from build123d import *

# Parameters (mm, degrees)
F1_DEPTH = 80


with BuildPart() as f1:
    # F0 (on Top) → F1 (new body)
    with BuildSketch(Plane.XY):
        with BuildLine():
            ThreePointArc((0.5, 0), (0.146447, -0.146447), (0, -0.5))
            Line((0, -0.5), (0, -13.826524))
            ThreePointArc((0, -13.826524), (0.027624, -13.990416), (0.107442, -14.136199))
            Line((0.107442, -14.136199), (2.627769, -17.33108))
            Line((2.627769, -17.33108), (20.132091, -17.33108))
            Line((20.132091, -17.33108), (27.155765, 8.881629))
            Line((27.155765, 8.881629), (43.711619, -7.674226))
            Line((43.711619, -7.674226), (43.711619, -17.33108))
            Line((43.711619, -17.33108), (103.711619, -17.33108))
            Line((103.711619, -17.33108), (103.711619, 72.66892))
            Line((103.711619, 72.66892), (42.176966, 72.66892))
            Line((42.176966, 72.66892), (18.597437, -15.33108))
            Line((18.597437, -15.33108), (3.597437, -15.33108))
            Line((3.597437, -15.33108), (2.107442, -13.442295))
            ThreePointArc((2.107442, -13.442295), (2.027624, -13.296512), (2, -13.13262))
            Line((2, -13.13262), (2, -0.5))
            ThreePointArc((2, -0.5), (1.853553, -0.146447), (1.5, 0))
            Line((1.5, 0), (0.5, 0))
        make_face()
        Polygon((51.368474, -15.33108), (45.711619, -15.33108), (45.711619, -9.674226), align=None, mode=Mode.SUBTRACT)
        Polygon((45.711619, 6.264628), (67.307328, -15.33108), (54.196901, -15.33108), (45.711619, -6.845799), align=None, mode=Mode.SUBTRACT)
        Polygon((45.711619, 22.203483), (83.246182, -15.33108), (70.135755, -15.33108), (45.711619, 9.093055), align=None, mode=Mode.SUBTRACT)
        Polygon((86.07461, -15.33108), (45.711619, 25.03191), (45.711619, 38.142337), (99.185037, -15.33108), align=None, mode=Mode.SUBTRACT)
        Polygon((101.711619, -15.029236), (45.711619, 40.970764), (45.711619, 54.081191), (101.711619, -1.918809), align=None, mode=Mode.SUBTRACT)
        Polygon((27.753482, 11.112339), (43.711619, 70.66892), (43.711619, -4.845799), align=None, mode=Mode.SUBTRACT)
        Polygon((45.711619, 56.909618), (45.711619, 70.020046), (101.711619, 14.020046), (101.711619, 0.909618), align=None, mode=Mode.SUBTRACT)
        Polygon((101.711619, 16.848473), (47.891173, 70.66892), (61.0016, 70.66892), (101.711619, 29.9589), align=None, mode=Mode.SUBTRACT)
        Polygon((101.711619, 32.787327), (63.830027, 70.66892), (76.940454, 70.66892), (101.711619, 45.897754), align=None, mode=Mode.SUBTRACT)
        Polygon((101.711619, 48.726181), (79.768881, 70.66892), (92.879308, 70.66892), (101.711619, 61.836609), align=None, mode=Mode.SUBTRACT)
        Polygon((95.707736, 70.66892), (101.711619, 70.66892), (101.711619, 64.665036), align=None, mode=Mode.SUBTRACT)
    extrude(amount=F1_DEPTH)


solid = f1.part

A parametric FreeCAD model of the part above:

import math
import FreeCAD as App
import Part
import Sketcher
from FreeCAD import Vector
Q = App.Units.Quantity


def add_polygon(sketch, points):
    """Adds a closed chain of lines whose ends are joined by coincident constraints."""
    first, n = sketch.GeometryCount, len(points)
    for a, b in zip(points, points[1:] + points[:1]):
        sketch.addGeometry(Part.LineSegment(App.Vector(*a, 0), App.Vector(*b, 0)), False)
    for i in range(n):
        sketch.addConstraint(Sketcher.Constraint("Coincident", first + i, 2, first + (i + 1) % n, 1))

doc = App.newDocument("Part")
body = doc.addObject("PartDesign::Body", "Body")

# Sketch on XY plane
sketch1 = body.newObject("Sketcher::SketchObject", "Sketch")
sketch1.AttachmentSupport = (doc.getObject("XY_Plane"), [""])
sketch1.MapMode = "FlatFace"
sketch1.addGeometry(Part.ArcOfCircle(Part.Circle(Vector(0.5, -0.5, 0), Vector(0, 0, 1), 0.5), math.radians(90), math.radians(180)), False)  # 0
sketch1.addGeometry(Part.LineSegment(Vector(0, -0.5, 0), Vector(0, -13.83, 0)), False)  # 1
sketch1.addGeometry(Part.ArcOfCircle(Part.Circle(Vector(0.5, -13.83, 0), Vector(0, 0, 1), 0.5), math.radians(-180), math.radians(-142)), False)  # 2
sketch1.addGeometry(Part.LineSegment(Vector(0.11, -14.14, 0), Vector(2.63, -17.33, 0)), False)  # 3
sketch1.addGeometry(Part.LineSegment(Vector(2.63, -17.33, 0), Vector(20.13, -17.33, 0)), False)  # 4
sketch1.addGeometry(Part.LineSegment(Vector(20.13, -17.33, 0), Vector(27.16, 8.88, 0)), False)  # 5
sketch1.addGeometry(Part.LineSegment(Vector(27.16, 8.88, 0), Vector(43.71, -7.67, 0)), False)  # 6
sketch1.addGeometry(Part.LineSegment(Vector(43.71, -7.67, 0), Vector(43.71, -17.33, 0)), False)  # 7
sketch1.addGeometry(Part.LineSegment(Vector(43.71, -17.33, 0), Vector(103.71, -17.33, 0)), False)  # 8
sketch1.addGeometry(Part.LineSegment(Vector(103.71, -17.33, 0), Vector(103.71, 72.67, 0)), False)  # 9
sketch1.addGeometry(Part.LineSegment(Vector(103.71, 72.67, 0), Vector(42.18, 72.67, 0)), False)  # 10
sketch1.addGeometry(Part.LineSegment(Vector(42.18, 72.67, 0), Vector(18.6, -15.33, 0)), False)  # 11
sketch1.addGeometry(Part.LineSegment(Vector(18.6, -15.33, 0), Vector(3.6, -15.33, 0)), False)  # 12
sketch1.addGeometry(Part.LineSegment(Vector(3.6, -15.33, 0), Vector(2.11, -13.44, 0)), False)  # 13
sketch1.addGeometry(Part.ArcOfCircle(Part.Circle(Vector(2.5, -13.13, 0), Vector(0, 0, 1), 0.5), math.radians(-180), math.radians(-142)), False)  # 14
sketch1.addGeometry(Part.LineSegment(Vector(2, -13.13, 0), Vector(2, -0.5, 0)), False)  # 15
sketch1.addGeometry(Part.ArcOfCircle(Part.Circle(Vector(1.5, -0.5, 0), Vector(0, 0, 1), 0.5), math.radians(0), math.radians(90)), False)  # 16
sketch1.addGeometry(Part.LineSegment(Vector(1.5, 0, 0), Vector(0.5, 0, 0)), False)  # 17
add_polygon(sketch1, [(45.71, -9.67), (51.37, -15.33), (45.71, -15.33)])  # lines 18-20
add_polygon(sketch1, [(45.71, -6.85), (45.71, 6.26), (67.31, -15.33), (54.2, -15.33)])  # lines 21-24
add_polygon(sketch1, [(45.71, 9.09), (45.71, 22.2), (83.25, -15.33), (70.14, -15.33)])  # lines 25-28
add_polygon(sketch1, [(99.19, -15.33), (86.07, -15.33), (45.71, 25.03), (45.71, 38.14)])  # lines 29-32
add_polygon(sketch1, [(101.71, -1.92), (101.71, -15.03), (45.71, 40.97), (45.71, 54.08)])  # lines 33-36
add_polygon(sketch1, [(43.71, -4.85), (27.75, 11.11), (43.71, 70.67)])  # lines 37-39
add_polygon(sketch1, [(101.71, 0.91), (45.71, 56.91), (45.71, 70.02), (101.71, 14.02)])  # lines 40-43
add_polygon(sketch1, [(101.71, 29.96), (101.71, 16.85), (47.89, 70.67), (61, 70.67)])  # lines 44-47
add_polygon(sketch1, [(101.71, 45.9), (101.71, 32.79), (63.83, 70.67), (76.94, 70.67)])  # lines 48-51
add_polygon(sketch1, [(101.71, 61.84), (101.71, 48.73), (79.77, 70.67), (92.88, 70.67)])  # lines 52-55
add_polygon(sketch1, [(101.71, 64.67), (95.71, 70.67), (101.71, 70.67)])  # lines 56-58
sketch1.addConstraint(Sketcher.Constraint("Coincident", 0, 2, 1, 1))
sketch1.addConstraint(Sketcher.Constraint("Coincident", 1, 2, 2, 1))
sketch1.addConstraint(Sketcher.Constraint("Coincident", 2, 2, 3, 1))
sketch1.addConstraint(Sketcher.Constraint("Coincident", 3, 2, 4, 1))
sketch1.addConstraint(Sketcher.Constraint("Coincident", 4, 2, 5, 1))
sketch1.addConstraint(Sketcher.Constraint("Coincident", 5, 2, 6, 1))
sketch1.addConstraint(Sketcher.Constraint("Coincident", 6, 2, 7, 1))
sketch1.addConstraint(Sketcher.Constraint("Coincident", 7, 2, 8, 1))
sketch1.addConstraint(Sketcher.Constraint("Coincident", 8, 2, 9, 1))
sketch1.addConstraint(Sketcher.Constraint("Coincident", 9, 2, 10, 1))
sketch1.addConstraint(Sketcher.Constraint("Coincident", 10, 2, 11, 1))
sketch1.addConstraint(Sketcher.Constraint("Coincident", 11, 2, 12, 1))
sketch1.addConstraint(Sketcher.Constraint("Coincident", 12, 2, 13, 1))
sketch1.addConstraint(Sketcher.Constraint("Coincident", 13, 2, 14, 2))
sketch1.addConstraint(Sketcher.Constraint("Coincident", 14, 1, 15, 1))
sketch1.addConstraint(Sketcher.Constraint("Coincident", 15, 2, 16, 1))
sketch1.addConstraint(Sketcher.Constraint("Coincident", 16, 2, 17, 1))
sketch1.addConstraint(Sketcher.Constraint("Coincident", 17, 2, 0, 1))
sketch1.addConstraint(Sketcher.Constraint("Vertical", 1))
sketch1.addConstraint(Sketcher.Constraint("Horizontal", 4))
sketch1.addConstraint(Sketcher.Constraint("Vertical", 7))
sketch1.addConstraint(Sketcher.Constraint("Horizontal", 8))
sketch1.addConstraint(Sketcher.Constraint("Vertical", 9))
sketch1.addConstraint(Sketcher.Constraint("Horizontal", 10))
sketch1.addConstraint(Sketcher.Constraint("Horizontal", 12))
sketch1.addConstraint(Sketcher.Constraint("Vertical", 15))
sketch1.addConstraint(Sketcher.Constraint("Horizontal", 17))
sketch1.addConstraint(Sketcher.Constraint("Horizontal", 19))
sketch1.addConstraint(Sketcher.Constraint("Vertical", 20))
sketch1.addConstraint(Sketcher.Constraint("Vertical", 21))
sketch1.addConstraint(Sketcher.Constraint("Horizontal", 23))
sketch1.addConstraint(Sketcher.Constraint("Vertical", 25))
sketch1.addConstraint(Sketcher.Constraint("Horizontal", 27))
sketch1.addConstraint(Sketcher.Constraint("Horizontal", 29))
sketch1.addConstraint(Sketcher.Constraint("Vertical", 31))
sketch1.addConstraint(Sketcher.Constraint("Vertical", 33))
sketch1.addConstraint(Sketcher.Constraint("Vertical", 35))
sketch1.addConstraint(Sketcher.Constraint("Vertical", 39))
sketch1.addConstraint(Sketcher.Constraint("Vertical", 41))
sketch1.addConstraint(Sketcher.Constraint("Vertical", 43))
sketch1.addConstraint(Sketcher.Constraint("Vertical", 44))
sketch1.addConstraint(Sketcher.Constraint("Horizontal", 46))
sketch1.addConstraint(Sketcher.Constraint("Vertical", 48))
sketch1.addConstraint(Sketcher.Constraint("Horizontal", 50))
sketch1.addConstraint(Sketcher.Constraint("Vertical", 52))
sketch1.addConstraint(Sketcher.Constraint("Horizontal", 54))
sketch1.addConstraint(Sketcher.Constraint("Horizontal", 57))
sketch1.addConstraint(Sketcher.Constraint("Vertical", 58))
sketch1.addConstraint(Sketcher.Constraint("Equal", 2, 14))
sketch1.addConstraint(Sketcher.Constraint("Equal", 0, 16))
sketch1.addConstraint(Sketcher.Constraint("PointOnObject", 0, 2, -2))
sketch1.addConstraint(Sketcher.Constraint("PointOnObject", 16, 2, -1))
sketch1.addConstraint(Sketcher.Constraint("Parallel", 5, 11))
sketch1.addConstraint(Sketcher.Constraint("Parallel", 3, 13))
sketch1.addConstraint(Sketcher.Constraint("Parallel", 6, 18))
sketch1.addConstraint(Sketcher.Constraint("Parallel", 18, 22))
sketch1.addConstraint(Sketcher.Constraint("Parallel", 22, 24))
sketch1.addConstraint(Sketcher.Constraint("Parallel", 24, 26))
sketch1.addConstraint(Sketcher.Constraint("Parallel", 26, 28))
sketch1.addConstraint(Sketcher.Constraint("Parallel", 28, 30))
sketch1.addConstraint(Sketcher.Constraint("Parallel", 30, 32))
sketch1.addConstraint(Sketcher.Constraint("Parallel", 32, 34))
sketch1.addConstraint(Sketcher.Constraint("Parallel", 34, 36))
sketch1.addConstraint(Sketcher.Constraint("Parallel", 36, 37))
sketch1.addConstraint(Sketcher.Constraint("Parallel", 11, 38))
sketch1.addConstraint(Sketcher.Constraint("Parallel", 37, 40))
sketch1.addConstraint(Sketcher.Constraint("Parallel", 40, 42))
sketch1.addConstraint(Sketcher.Constraint("Parallel", 42, 45))
sketch1.addConstraint(Sketcher.Constraint("Parallel", 45, 47))
sketch1.addConstraint(Sketcher.Constraint("Parallel", 47, 49))
sketch1.addConstraint(Sketcher.Constraint("Parallel", 49, 51))
sketch1.addConstraint(Sketcher.Constraint("Parallel", 51, 53))
sketch1.addConstraint(Sketcher.Constraint("Parallel", 53, 55))
sketch1.addConstraint(Sketcher.Constraint("Parallel", 55, 56))
sketch1.addConstraint(Sketcher.Constraint("Horizontal", 16, 3, 0, 2))
sketch1.addConstraint(Sketcher.Constraint("Horizontal", 4, 2, 7, 2))
sketch1.addConstraint(Sketcher.Constraint("Horizontal", 0, 2, 15, 2))
sketch1.addConstraint(Sketcher.Constraint("Horizontal", 12, 2, 18, 2))
sketch1.addConstraint(Sketcher.Constraint("Horizontal", 19, 2, 22, 2))
sketch1.addConstraint(Sketcher.Constraint("Horizontal", 23, 2, 26, 2))
sketch1.addConstraint(Sketcher.Constraint("Horizontal", 27, 2, 29, 2))
sketch1.addConstraint(Sketcher.Constraint("Horizontal", 38, 2, 45, 2))
sketch1.addConstraint(Sketcher.Constraint("Horizontal", 46, 2, 49, 2))
sketch1.addConstraint(Sketcher.Constraint("Horizontal", 50, 2, 53, 2))
sketch1.addConstraint(Sketcher.Constraint("Horizontal", 54, 2, 56, 2))
sketch1.addConstraint(Sketcher.Constraint("Vertical", 0, 3, 17, 2))
sketch1.addConstraint(Sketcher.Constraint("Vertical", 20, 2, 21, 2))
sketch1.addConstraint(Sketcher.Constraint("Vertical", 24, 2, 25, 2))
sketch1.addConstraint(Sketcher.Constraint("Vertical", 28, 2, 30, 2))
sketch1.addConstraint(Sketcher.Constraint("Vertical", 31, 2, 34, 2))
sketch1.addConstraint(Sketcher.Constraint("Vertical", 7, 2, 38, 2))
sketch1.addConstraint(Sketcher.Constraint("Vertical", 35, 2, 40, 2))
sketch1.addConstraint(Sketcher.Constraint("Vertical", 36, 2, 42, 2))
sketch1.addConstraint(Sketcher.Constraint("Vertical", 43, 2, 44, 2))
sketch1.addConstraint(Sketcher.Constraint("Vertical", 47, 2, 48, 2))
sketch1.addConstraint(Sketcher.Constraint("Vertical", 51, 2, 52, 2))
sketch1.addConstraint(Sketcher.Constraint("Vertical", 55, 2, 57, 2))
sketch1.addConstraint(Sketcher.Constraint("Equal", 23, 27))
sketch1.addConstraint(Sketcher.Constraint("Equal", 27, 29))
sketch1.addConstraint(Sketcher.Constraint("Equal", 29, 46))
sketch1.addConstraint(Sketcher.Constraint("Equal", 46, 50))
sketch1.addConstraint(Sketcher.Constraint("Equal", 50, 54))
sketch1.addConstraint(Sketcher.Constraint("Equal", 19, 20))
sketch1.addConstraint(Sketcher.Constraint("Equal", 31, 33))
sketch1.addConstraint(Sketcher.Constraint("Equal", 35, 41))
sketch1.addConstraint(Sketcher.Constraint("Radius", 0, Q("0.500001 mm")))
sketch1.addConstraint(Sketcher.Constraint("DistanceX", 8, 1, 8, 2, Q("60 mm")))
sketch1.addConstraint(Sketcher.Constraint("DistanceX", 12, 2, 12, 1, Q("15 mm")))
sketch1.addConstraint(Sketcher.Constraint("DistanceX", 17, 2, 17, 1, Q("1 mm")))
sketch1.addConstraint(Sketcher.Constraint("DistanceY", 9, 1, 9, 2, Q("90 mm")))
sketch1.addConstraint(Sketcher.Constraint("Angle", 5, Q("75 deg")))
sketch1.addConstraint(Sketcher.Constraint("Distance", 18, Q("8 mm")))
sketch1.addConstraint(Sketcher.Constraint("Distance", 24, Q("12 mm")))
sketch1.addConstraint(Sketcher.Constraint("DistanceX", -1, 1, 14, 1, Q("2 mm")))
sketch1.addConstraint(Sketcher.Constraint("Radius", 2, Q("0.500009 mm")))
sketch1.addConstraint(Sketcher.Constraint("DistanceX", 4, 1, 4, 2, Q("17.504322 mm")))
sketch1.addConstraint(Sketcher.Constraint("DistanceY", 15, 1, 15, 2, Q("12.63262 mm")))
sketch1.addConstraint(Sketcher.Constraint("DistanceY", 39, 2, 39, 1, Q("75.514719 mm")))
sketch1.addConstraint(Sketcher.Constraint("DistanceY", 43, 2, 43, 1, Q("13.110428 mm")))
sketch1.addConstraint(Sketcher.Constraint("DistanceY", 2, 2, -1, 1, Q("14.136199 mm")))
sketch1.addConstraint(Sketcher.Constraint("DistanceX", -1, 1, 23, 2, Q("54.196901 mm")))
sketch1.addConstraint(Sketcher.Constraint("DistanceY", 24, 2, -1, 1, Q("6.845799 mm")))
sketch1.addConstraint(Sketcher.Constraint("DistanceY", 39, 2, -1, 1, Q("4.845799 mm")))
sketch1.addConstraint(Sketcher.Constraint("DistanceX", -1, 1, 46, 2, Q("61.0016 mm")))
sketch1.addConstraint(Sketcher.Constraint("DistanceY", -1, 1, 47, 2, Q("29.9589 mm")))
sketch1.addConstraint(Sketcher.Constraint("Distance", 13, Q("2.405742 mm")))
sketch1.addConstraint(Sketcher.Constraint("Distance", 26, Q("53.081888 mm")))
sketch1.addConstraint(Sketcher.Constraint("Distance", 30, Q("57.081889 mm")))
sketch1.addConstraint(Sketcher.Constraint("Distance", 49, Q("53.572662 mm")))
sketch1.addConstraint(Sketcher.Constraint("Distance", 53, Q("31.031718 mm")))
sketch1.addConstraint(Sketcher.Constraint("DistanceX", 10, 2, 10, 1, Q("61.534653 mm")))
sketch1.addConstraint(Sketcher.Constraint("DistanceX", 57, 1, 57, 2, Q("6.003883 mm")))
sketch1.addConstraint(Sketcher.Constraint("DistanceY", 1, 2, 1, 1, Q("13.326524 mm")))
sketch1.addConstraint(Sketcher.Constraint("DistanceY", 7, 2, 7, 1, Q("9.656854 mm")))
sketch1.addConstraint(Sketcher.Constraint("DistanceY", 2, 3, -1, 1, Q("13.826521 mm")))
sketch1.addConstraint(Sketcher.Constraint("DistanceX", -1, 1, 3, 2, Q("2.627769 mm")))
sketch1.addConstraint(Sketcher.Constraint("DistanceY", 3, 2, -1, 1, Q("17.33108 mm")))
sketch1.addConstraint(Sketcher.Constraint("DistanceY", -1, 1, 5, 2, Q("8.881629 mm")))
sketch1.addConstraint(Sketcher.Constraint("DistanceY", -1, 1, 35, 2, Q("54.081191 mm")))
sketch1.addConstraint(Sketcher.Constraint("DistanceY", -1, 1, 40, 2, Q("56.909618 mm")))
pad1 = body.newObject("PartDesign::Pad", "Pad")
pad1.Profile = sketch1
pad1.Length = 80

doc.recompute()
